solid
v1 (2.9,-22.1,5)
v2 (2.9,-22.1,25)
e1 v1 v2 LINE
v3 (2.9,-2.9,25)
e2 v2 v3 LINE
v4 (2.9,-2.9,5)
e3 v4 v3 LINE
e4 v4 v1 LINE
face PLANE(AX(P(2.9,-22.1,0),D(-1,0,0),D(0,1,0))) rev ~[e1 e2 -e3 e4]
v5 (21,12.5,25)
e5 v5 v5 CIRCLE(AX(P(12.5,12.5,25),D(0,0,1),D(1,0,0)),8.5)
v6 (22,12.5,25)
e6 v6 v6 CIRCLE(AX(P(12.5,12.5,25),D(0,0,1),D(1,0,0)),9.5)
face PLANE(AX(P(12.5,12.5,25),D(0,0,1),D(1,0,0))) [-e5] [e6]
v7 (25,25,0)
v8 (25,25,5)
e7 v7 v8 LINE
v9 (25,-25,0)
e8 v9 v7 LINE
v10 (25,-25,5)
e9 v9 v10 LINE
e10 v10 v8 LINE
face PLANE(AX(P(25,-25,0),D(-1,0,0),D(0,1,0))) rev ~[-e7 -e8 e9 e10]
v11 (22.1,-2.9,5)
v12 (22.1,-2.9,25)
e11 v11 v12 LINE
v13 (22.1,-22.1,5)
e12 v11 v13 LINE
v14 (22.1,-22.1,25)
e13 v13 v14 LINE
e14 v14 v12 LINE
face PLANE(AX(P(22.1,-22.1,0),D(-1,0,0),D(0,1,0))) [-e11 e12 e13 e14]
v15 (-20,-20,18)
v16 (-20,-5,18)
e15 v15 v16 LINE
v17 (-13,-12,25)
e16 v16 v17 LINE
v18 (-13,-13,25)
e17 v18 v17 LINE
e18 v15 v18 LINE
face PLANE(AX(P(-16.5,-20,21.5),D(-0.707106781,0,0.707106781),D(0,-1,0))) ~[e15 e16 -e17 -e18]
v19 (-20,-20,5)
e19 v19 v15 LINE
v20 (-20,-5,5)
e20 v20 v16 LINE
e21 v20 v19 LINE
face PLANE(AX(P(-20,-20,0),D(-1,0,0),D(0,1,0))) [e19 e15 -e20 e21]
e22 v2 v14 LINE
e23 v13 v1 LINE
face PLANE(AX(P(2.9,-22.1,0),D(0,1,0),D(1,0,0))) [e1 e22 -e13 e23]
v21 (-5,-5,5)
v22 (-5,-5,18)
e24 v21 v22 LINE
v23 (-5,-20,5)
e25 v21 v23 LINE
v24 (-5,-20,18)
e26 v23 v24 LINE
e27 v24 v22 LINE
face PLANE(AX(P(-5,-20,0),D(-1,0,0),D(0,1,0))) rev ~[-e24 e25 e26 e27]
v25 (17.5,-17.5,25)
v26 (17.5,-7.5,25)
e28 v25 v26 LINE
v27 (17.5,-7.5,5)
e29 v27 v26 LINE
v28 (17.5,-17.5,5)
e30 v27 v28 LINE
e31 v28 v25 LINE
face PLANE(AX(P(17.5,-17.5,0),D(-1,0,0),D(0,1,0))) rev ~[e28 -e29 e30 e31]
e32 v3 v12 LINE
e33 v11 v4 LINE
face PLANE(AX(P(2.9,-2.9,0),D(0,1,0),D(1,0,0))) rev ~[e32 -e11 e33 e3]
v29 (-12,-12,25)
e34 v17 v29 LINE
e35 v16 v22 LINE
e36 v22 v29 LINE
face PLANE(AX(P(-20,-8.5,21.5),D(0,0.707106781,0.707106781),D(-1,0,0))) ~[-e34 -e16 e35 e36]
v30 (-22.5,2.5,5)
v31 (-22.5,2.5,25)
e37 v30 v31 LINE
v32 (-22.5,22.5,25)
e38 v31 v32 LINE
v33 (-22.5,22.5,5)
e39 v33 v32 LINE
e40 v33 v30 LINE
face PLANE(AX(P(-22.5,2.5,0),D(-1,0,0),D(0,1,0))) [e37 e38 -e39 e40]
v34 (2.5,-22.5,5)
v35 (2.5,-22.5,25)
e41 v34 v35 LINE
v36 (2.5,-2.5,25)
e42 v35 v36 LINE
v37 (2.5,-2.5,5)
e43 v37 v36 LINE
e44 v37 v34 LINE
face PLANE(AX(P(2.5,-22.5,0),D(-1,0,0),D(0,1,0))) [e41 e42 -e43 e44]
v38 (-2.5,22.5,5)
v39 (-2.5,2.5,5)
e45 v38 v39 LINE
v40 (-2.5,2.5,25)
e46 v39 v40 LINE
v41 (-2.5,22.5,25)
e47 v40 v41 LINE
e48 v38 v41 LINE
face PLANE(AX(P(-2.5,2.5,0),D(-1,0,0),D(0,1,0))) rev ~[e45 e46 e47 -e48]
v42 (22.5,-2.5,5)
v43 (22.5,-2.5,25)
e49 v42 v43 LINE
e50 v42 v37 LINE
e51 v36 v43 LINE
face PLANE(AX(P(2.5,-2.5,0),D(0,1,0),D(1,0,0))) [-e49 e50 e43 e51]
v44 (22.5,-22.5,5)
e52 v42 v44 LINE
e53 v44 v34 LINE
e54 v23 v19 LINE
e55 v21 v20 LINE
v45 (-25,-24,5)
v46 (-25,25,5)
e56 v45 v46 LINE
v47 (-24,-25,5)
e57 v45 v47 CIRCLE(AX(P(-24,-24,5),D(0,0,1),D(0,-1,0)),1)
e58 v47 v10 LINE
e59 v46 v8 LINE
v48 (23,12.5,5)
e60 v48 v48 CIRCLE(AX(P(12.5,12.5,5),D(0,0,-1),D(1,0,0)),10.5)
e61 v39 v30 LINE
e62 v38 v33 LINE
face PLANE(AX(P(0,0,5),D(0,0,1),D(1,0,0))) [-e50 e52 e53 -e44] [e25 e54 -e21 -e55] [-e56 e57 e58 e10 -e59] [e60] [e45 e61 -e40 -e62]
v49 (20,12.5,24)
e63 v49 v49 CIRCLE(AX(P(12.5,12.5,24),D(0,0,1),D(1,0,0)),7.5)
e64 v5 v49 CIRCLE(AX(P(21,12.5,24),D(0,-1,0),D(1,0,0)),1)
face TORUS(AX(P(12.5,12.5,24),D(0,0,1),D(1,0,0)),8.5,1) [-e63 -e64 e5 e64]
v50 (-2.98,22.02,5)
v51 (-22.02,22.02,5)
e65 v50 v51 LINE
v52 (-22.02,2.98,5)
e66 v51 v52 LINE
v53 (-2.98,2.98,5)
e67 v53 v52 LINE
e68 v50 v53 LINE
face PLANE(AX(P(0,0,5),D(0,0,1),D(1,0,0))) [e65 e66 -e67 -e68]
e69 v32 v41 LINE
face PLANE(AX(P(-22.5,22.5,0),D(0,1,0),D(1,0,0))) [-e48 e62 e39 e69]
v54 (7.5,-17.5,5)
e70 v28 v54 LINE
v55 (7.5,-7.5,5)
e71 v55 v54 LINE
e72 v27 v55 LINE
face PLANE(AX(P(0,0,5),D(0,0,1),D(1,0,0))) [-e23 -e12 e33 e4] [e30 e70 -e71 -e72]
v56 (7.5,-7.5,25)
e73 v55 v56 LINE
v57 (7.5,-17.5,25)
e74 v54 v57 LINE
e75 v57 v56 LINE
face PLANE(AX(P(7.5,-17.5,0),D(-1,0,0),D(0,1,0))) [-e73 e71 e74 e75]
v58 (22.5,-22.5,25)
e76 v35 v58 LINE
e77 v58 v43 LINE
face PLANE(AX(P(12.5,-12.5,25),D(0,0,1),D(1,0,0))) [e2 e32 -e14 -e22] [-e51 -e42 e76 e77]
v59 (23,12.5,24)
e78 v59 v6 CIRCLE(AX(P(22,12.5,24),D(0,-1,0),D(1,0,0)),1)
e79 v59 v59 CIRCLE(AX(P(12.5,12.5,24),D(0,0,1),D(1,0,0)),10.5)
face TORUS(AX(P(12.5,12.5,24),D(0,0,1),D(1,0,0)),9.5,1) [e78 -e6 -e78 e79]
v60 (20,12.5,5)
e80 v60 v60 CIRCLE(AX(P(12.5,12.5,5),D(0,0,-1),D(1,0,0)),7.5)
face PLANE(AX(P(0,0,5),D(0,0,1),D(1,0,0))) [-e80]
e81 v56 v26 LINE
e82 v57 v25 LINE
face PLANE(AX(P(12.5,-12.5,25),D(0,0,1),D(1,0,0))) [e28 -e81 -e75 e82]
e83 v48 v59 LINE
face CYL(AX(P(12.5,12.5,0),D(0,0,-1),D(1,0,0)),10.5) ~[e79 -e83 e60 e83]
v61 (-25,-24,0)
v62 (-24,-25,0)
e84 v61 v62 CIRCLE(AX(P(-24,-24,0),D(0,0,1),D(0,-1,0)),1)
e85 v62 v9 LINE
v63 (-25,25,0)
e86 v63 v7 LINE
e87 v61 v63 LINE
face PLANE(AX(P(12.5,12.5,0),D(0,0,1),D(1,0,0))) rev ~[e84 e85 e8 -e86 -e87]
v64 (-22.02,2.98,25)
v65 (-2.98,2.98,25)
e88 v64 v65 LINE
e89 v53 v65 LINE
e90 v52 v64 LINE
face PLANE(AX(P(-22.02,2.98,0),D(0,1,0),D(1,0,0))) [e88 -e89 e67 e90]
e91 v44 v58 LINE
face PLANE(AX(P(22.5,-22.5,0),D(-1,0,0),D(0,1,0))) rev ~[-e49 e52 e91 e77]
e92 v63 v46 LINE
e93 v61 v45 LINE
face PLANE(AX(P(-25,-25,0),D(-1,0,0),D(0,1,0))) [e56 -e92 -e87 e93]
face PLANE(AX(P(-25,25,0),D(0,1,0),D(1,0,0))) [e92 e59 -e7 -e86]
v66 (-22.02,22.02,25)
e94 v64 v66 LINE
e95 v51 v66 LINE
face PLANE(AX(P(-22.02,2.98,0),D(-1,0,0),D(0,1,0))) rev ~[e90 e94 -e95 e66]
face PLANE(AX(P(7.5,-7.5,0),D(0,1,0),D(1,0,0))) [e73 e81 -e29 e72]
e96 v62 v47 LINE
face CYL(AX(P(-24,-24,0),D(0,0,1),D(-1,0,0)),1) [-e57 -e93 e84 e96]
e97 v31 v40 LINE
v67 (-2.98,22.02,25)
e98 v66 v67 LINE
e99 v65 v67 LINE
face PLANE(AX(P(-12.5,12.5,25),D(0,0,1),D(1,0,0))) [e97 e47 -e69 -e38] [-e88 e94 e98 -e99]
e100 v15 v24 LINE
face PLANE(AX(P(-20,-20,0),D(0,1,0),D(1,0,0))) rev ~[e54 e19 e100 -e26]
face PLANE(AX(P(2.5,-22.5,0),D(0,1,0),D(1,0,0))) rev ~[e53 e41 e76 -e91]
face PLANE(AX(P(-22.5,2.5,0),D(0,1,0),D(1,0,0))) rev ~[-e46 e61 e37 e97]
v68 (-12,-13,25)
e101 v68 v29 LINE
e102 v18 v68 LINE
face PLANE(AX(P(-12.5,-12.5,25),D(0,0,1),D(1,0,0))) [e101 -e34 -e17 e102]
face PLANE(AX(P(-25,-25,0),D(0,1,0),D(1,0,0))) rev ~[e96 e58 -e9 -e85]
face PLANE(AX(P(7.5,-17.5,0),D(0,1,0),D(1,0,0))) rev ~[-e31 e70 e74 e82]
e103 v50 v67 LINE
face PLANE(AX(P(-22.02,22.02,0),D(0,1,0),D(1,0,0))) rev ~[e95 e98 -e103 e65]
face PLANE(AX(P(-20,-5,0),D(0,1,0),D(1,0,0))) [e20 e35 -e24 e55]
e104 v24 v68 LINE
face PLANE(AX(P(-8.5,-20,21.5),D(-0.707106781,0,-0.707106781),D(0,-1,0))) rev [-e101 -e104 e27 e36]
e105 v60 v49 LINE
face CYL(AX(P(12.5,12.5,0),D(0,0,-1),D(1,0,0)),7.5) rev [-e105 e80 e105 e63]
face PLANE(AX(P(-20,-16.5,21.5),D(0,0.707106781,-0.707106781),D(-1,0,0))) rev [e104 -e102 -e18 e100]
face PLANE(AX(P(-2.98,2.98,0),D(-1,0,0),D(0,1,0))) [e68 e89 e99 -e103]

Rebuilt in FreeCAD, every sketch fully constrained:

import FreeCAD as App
import Part
import Sketcher
from FreeCAD import Vector
Q = App.Units.Quantity


def edges_at(feature, points):
    """Names of the edges that pass closest to the given points."""
    edges = feature.Shape.Edges
    near = lambda p: min(range(len(edges)), key=lambda i: edges[i].distToShape(Part.Vertex(*p))[0])
    return sorted({f"Edge{near(p) + 1}" for p in points})

doc = App.newDocument("Part")
body = doc.addObject("PartDesign::Body", "Body")

# Sketch on XY plane
sketch1 = body.newObject("Sketcher::SketchObject", "Sketch")
sketch1.AttachmentSupport = (doc.getObject("XY_Plane"), [""])
sketch1.MapMode = "FlatFace"
sketch1.addGeometry([
    Part.LineSegment(Vector(-25, 25, 0), Vector(-25, -25, 0)),
    Part.LineSegment(Vector(-25, -25, 0), Vector(25, -25, 0)),
    Part.LineSegment(Vector(25, -25, 0), Vector(25, 25, 0)),
    Part.LineSegment(Vector(25, 25, 0), Vector(-25, 25, 0)),
], False)
sketch1.addConstraint([
    Sketcher.Constraint("Coincident", 0, 2, 1, 1),
    Sketcher.Constraint("Coincident", 1, 2, 2, 1),
    Sketcher.Constraint("Coincident", 2, 2, 3, 1),
    Sketcher.Constraint("Coincident", 3, 2, 0, 1),
    Sketcher.Constraint("Vertical", 0),
    Sketcher.Constraint("Horizontal", 1),
    Sketcher.Constraint("Vertical", 2),
    Sketcher.Constraint("Horizontal", 3),
    Sketcher.Constraint("Symmetric", 0, 2, 2, 2, -1, 1),
    Sketcher.Constraint("Equal", 3, 0),
    Sketcher.Constraint("DistanceX", 1, 1, 1, 2, Q("50 mm")),
])
pad1 = body.newObject("PartDesign::Pad", "Pad")
pad1.Profile = sketch1
pad1.Length = 5

# Sketch on XY plane
sketch2 = body.newObject("Sketcher::SketchObject", "Sketch001")
sketch2.AttachmentSupport = (doc.getObject("XY_Plane"), [""])
sketch2.MapMode = "FlatFace"
sketch2.addGeometry([
    Part.LineSegment(Vector(-22, 23, 0), Vector(-22, 3, 0)),  # 0
    Part.LineSegment(Vector(-22, 3, 0), Vector(-2, 3, 0)),  # 1
    Part.LineSegment(Vector(-2, 3, 0), Vector(-2, 23, 0)),  # 2
    Part.LineSegment(Vector(-2, 23, 0), Vector(-22, 23, 0)),  # 3
    Part.LineSegment(Vector(-3, 3, 0), Vector(-22, 3, 0)),  # 4
    Part.LineSegment(Vector(-22, 3, 0), Vector(-22, 22, 0)),  # 5
    Part.LineSegment(Vector(-22, 22, 0), Vector(-3, 22, 0)),  # 6
    Part.LineSegment(Vector(-3, 22, 0), Vector(-3, 3, 0)),  # 7
], False)
sketch2.addConstraint([
    Sketcher.Constraint("Coincident", 0, 2, 1, 1),
    Sketcher.Constraint("Coincident", 1, 2, 2, 1),
    Sketcher.Constraint("Coincident", 2, 2, 3, 1),
    Sketcher.Constraint("Coincident", 3, 2, 0, 1),
    Sketcher.Constraint("Coincident", 4, 2, 5, 1),
    Sketcher.Constraint("Coincident", 5, 2, 6, 1),
    Sketcher.Constraint("Coincident", 6, 2, 7, 1),
    Sketcher.Constraint("Coincident", 7, 2, 4, 1),
    Sketcher.Constraint("Vertical", 0),
    Sketcher.Constraint("Horizontal", 1),
    Sketcher.Constraint("Vertical", 2),
    Sketcher.Constraint("Horizontal", 3),
    Sketcher.Constraint("Horizontal", 4),
    Sketcher.Constraint("Vertical", 5),
    Sketcher.Constraint("Horizontal", 6),
    Sketcher.Constraint("Vertical", 7),
    Sketcher.Constraint("Equal", 3, 0),
    Sketcher.Constraint("Equal", 6, 5),
    Sketcher.Constraint("DistanceX", 1, 1, 1, 2, Q("20 mm")),
    Sketcher.Constraint("DistanceX", 4, 2, 4, 1, Q("19.04 mm")),
    Sketcher.Constraint("DistanceX", 0, 2, -1, 1, Q("22.5 mm")),
    Sketcher.Constraint("DistanceY", -1, 1, 0, 2, Q("2.5 mm")),
    Sketcher.Constraint("DistanceX", 4, 2, -1, 1, Q("22.02 mm")),
    Sketcher.Constraint("DistanceY", -1, 1, 4, 2, Q("2.98 mm")),
])
pad2 = body.newObject("PartDesign::Pad", "Pad001")
pad2.Profile = sketch2
pad2.Length = 25

# Sketch on XY plane
sketch3 = body.newObject("Sketcher::SketchObject", "Sketch002")
sketch3.AttachmentSupport = (doc.getObject("XY_Plane"), [""])
sketch3.MapMode = "FlatFace"
sketch3.addGeometry([
    Part.LineSegment(Vector(2, -2, 0), Vector(2, -22, 0)),  # 0
    Part.LineSegment(Vector(2, -22, 0), Vector(22, -22, 0)),  # 1
    Part.LineSegment(Vector(22, -22, 0), Vector(22, -2, 0)),  # 2
    Part.LineSegment(Vector(22, -2, 0), Vector(2, -2, 0)),  # 3
    Part.LineSegment(Vector(22, -22, 0), Vector(3, -22, 0)),  # 4
    Part.LineSegment(Vector(3, -22, 0), Vector(3, -3, 0)),  # 5
    Part.LineSegment(Vector(3, -3, 0), Vector(22, -3, 0)),  # 6
    Part.LineSegment(Vector(22, -3, 0), Vector(22, -22, 0)),  # 7
    Part.LineSegment(Vector(8, -8, 0), Vector(8, -18, 0)),  # 8
    Part.LineSegment(Vector(8, -18, 0), Vector(18, -18, 0)),  # 9
    Part.LineSegment(Vector(18, -18, 0), Vector(18, -8, 0)),  # 10
    Part.LineSegment(Vector(18, -8, 0), Vector(8, -8, 0)),  # 11
], False)
sketch3.addConstraint([
    Sketcher.Constraint("Coincident", 0, 2, 1, 1),
    Sketcher.Constraint("Coincident", 1, 2, 2, 1),
    Sketcher.Constraint("Coincident", 2, 2, 3, 1),
    Sketcher.Constraint("Coincident", 3, 2, 0, 1),
    Sketcher.Constraint("Coincident", 4, 2, 5, 1),
    Sketcher.Constraint("Coincident", 5, 2, 6, 1),
    Sketcher.Constraint("Coincident", 6, 2, 7, 1),
    Sketcher.Constraint("Coincident", 7, 2, 4, 1),
    Sketcher.Constraint("Coincident", 8, 2, 9, 1),
    Sketcher.Constraint("Coincident", 9, 2, 10, 1),
    Sketcher.Constraint("Coincident", 10, 2, 11, 1),
    Sketcher.Constraint("Coincident", 11, 2, 8, 1),
    Sketcher.Constraint("Vertical", 0),
    Sketcher.Constraint("Horizontal", 1),
    Sketcher.Constraint("Vertical", 2),
    Sketcher.Constraint("Horizontal", 3),
    Sketcher.Constraint("Horizontal", 4),
    Sketcher.Constraint("Vertical", 5),
    Sketcher.Constraint("Horizontal", 6),
    Sketcher.Constraint("Vertical", 7),
    Sketcher.Constraint("Vertical", 8),
    Sketcher.Constraint("Horizontal", 9),
    Sketcher.Constraint("Vertical", 10),
    Sketcher.Constraint("Horizontal", 11),
    Sketcher.Constraint("Equal", 3, 0),
    Sketcher.Constraint("Equal", 6, 5),
    Sketcher.Constraint("Equal", 11, 8),
    Sketcher.Constraint("DistanceX", 1, 1, 1, 2, Q("20 mm")),
    Sketcher.Constraint("DistanceX", 9, 1, 9, 2, Q("10 mm")),
    Sketcher.Constraint("DistanceX", 4, 2, 4, 1, Q("19.2 mm")),
    Sketcher.Constraint("DistanceX", 0, 2, 8, 2, Q("5 mm")),
    Sketcher.Constraint("DistanceY", 0, 2, 8, 2, Q("5 mm")),
    Sketcher.Constraint("DistanceX", -1, 1, 0, 2, Q("2.5 mm")),
    Sketcher.Constraint("DistanceY", 0, 2, -1, 1, Q("22.5 mm")),
    Sketcher.Constraint("DistanceX", -1, 1, 4, 2, Q("2.9 mm")),
    Sketcher.Constraint("DistanceY", 4, 2, -1, 1, Q("22.1 mm")),
])
pad3 = body.newObject("PartDesign::Pad", "Pad002")
pad3.Profile = sketch3
pad3.Length = 25

# Sketch on XY plane
sketch4 = body.newObject("Sketcher::SketchObject", "Sketch003")
sketch4.AttachmentSupport = (doc.getObject("XY_Plane"), [""])
sketch4.MapMode = "FlatFace"
sketch4.addGeometry([
    Part.LineSegment(Vector(-20, -5, 0), Vector(-20, -20, 0)),
    Part.LineSegment(Vector(-20, -20, 0), Vector(-5, -20, 0)),
    Part.LineSegment(Vector(-5, -20, 0), Vector(-5, -5, 0)),
    Part.LineSegment(Vector(-5, -5, 0), Vector(-20, -5, 0)),
], False)
sketch4.addConstraint([
    Sketcher.Constraint("Coincident", 0, 2, 1, 1),
    Sketcher.Constraint("Coincident", 1, 2, 2, 1),
    Sketcher.Constraint("Coincident", 2, 2, 3, 1),
    Sketcher.Constraint("Coincident", 3, 2, 0, 1),
    Sketcher.Constraint("Vertical", 0),
    Sketcher.Constraint("Horizontal", 1),
    Sketcher.Constraint("Vertical", 2),
    Sketcher.Constraint("Horizontal", 3),
    Sketcher.Constraint("Equal", 3, 0),
    Sketcher.Constraint("DistanceX", 1, 1, 1, 2, Q("15 mm")),
    Sketcher.Constraint("DistanceX", 0, 2, -1, 1, Q("20 mm")),
    Sketcher.Constraint("DistanceY", 0, 2, -1, 1, Q("20 mm")),
])
pad4 = body.newObject("PartDesign::Pad", "Pad003")
pad4.Profile = sketch4
pad4.Length = 25

# Sketch on XY plane
sketch5 = body.newObject("Sketcher::SketchObject", "Sketch004")
sketch5.AttachmentSupport = (doc.getObject("XY_Plane"), [""])
sketch5.MapMode = "FlatFace"
sketch5.addGeometry([
    Part.Circle(Vector(12, 13, 0), Vector(0, 0, 1), 10),
    Part.Circle(Vector(12, 13, 0), Vector(0, 0, 1), 8),
], False)
sketch5.addConstraint([
    Sketcher.Constraint("Coincident", 1, 3, 0, 3),
    Sketcher.Constraint("Diameter", 0, Q("21 mm")),
    Sketcher.Constraint("Diameter", 1, Q("15 mm")),
    Sketcher.Constraint("DistanceX", -1, 1, 0, 3, Q("12.5 mm")),
    Sketcher.Constraint("DistanceY", -1, 1, 0, 3, Q("12.5 mm")),
])
pad5 = body.newObject("PartDesign::Pad", "Pad004")
pad5.Profile = sketch5
pad5.Length = 25
doc.recompute()

fillet = body.newObject("PartDesign::Fillet", "Fillet")
fillet.Base = (pad5, edges_at(pad5, [(-25, -25, 2.5), (2, 12.5, 25), (5, 12.5, 25)]))
fillet.Radius = 1
doc.recompute()

chamfer = body.newObject("PartDesign::Chamfer", "Chamfer")
chamfer.Base = (fillet, edges_at(fillet, [
    (-12.5, -5, 25),
    (-20, -12.5, 25),
    (-12.5, -20, 25),
    (-5, -12.5, 25),
]))
chamfer.Size = 7

doc.recompute()
